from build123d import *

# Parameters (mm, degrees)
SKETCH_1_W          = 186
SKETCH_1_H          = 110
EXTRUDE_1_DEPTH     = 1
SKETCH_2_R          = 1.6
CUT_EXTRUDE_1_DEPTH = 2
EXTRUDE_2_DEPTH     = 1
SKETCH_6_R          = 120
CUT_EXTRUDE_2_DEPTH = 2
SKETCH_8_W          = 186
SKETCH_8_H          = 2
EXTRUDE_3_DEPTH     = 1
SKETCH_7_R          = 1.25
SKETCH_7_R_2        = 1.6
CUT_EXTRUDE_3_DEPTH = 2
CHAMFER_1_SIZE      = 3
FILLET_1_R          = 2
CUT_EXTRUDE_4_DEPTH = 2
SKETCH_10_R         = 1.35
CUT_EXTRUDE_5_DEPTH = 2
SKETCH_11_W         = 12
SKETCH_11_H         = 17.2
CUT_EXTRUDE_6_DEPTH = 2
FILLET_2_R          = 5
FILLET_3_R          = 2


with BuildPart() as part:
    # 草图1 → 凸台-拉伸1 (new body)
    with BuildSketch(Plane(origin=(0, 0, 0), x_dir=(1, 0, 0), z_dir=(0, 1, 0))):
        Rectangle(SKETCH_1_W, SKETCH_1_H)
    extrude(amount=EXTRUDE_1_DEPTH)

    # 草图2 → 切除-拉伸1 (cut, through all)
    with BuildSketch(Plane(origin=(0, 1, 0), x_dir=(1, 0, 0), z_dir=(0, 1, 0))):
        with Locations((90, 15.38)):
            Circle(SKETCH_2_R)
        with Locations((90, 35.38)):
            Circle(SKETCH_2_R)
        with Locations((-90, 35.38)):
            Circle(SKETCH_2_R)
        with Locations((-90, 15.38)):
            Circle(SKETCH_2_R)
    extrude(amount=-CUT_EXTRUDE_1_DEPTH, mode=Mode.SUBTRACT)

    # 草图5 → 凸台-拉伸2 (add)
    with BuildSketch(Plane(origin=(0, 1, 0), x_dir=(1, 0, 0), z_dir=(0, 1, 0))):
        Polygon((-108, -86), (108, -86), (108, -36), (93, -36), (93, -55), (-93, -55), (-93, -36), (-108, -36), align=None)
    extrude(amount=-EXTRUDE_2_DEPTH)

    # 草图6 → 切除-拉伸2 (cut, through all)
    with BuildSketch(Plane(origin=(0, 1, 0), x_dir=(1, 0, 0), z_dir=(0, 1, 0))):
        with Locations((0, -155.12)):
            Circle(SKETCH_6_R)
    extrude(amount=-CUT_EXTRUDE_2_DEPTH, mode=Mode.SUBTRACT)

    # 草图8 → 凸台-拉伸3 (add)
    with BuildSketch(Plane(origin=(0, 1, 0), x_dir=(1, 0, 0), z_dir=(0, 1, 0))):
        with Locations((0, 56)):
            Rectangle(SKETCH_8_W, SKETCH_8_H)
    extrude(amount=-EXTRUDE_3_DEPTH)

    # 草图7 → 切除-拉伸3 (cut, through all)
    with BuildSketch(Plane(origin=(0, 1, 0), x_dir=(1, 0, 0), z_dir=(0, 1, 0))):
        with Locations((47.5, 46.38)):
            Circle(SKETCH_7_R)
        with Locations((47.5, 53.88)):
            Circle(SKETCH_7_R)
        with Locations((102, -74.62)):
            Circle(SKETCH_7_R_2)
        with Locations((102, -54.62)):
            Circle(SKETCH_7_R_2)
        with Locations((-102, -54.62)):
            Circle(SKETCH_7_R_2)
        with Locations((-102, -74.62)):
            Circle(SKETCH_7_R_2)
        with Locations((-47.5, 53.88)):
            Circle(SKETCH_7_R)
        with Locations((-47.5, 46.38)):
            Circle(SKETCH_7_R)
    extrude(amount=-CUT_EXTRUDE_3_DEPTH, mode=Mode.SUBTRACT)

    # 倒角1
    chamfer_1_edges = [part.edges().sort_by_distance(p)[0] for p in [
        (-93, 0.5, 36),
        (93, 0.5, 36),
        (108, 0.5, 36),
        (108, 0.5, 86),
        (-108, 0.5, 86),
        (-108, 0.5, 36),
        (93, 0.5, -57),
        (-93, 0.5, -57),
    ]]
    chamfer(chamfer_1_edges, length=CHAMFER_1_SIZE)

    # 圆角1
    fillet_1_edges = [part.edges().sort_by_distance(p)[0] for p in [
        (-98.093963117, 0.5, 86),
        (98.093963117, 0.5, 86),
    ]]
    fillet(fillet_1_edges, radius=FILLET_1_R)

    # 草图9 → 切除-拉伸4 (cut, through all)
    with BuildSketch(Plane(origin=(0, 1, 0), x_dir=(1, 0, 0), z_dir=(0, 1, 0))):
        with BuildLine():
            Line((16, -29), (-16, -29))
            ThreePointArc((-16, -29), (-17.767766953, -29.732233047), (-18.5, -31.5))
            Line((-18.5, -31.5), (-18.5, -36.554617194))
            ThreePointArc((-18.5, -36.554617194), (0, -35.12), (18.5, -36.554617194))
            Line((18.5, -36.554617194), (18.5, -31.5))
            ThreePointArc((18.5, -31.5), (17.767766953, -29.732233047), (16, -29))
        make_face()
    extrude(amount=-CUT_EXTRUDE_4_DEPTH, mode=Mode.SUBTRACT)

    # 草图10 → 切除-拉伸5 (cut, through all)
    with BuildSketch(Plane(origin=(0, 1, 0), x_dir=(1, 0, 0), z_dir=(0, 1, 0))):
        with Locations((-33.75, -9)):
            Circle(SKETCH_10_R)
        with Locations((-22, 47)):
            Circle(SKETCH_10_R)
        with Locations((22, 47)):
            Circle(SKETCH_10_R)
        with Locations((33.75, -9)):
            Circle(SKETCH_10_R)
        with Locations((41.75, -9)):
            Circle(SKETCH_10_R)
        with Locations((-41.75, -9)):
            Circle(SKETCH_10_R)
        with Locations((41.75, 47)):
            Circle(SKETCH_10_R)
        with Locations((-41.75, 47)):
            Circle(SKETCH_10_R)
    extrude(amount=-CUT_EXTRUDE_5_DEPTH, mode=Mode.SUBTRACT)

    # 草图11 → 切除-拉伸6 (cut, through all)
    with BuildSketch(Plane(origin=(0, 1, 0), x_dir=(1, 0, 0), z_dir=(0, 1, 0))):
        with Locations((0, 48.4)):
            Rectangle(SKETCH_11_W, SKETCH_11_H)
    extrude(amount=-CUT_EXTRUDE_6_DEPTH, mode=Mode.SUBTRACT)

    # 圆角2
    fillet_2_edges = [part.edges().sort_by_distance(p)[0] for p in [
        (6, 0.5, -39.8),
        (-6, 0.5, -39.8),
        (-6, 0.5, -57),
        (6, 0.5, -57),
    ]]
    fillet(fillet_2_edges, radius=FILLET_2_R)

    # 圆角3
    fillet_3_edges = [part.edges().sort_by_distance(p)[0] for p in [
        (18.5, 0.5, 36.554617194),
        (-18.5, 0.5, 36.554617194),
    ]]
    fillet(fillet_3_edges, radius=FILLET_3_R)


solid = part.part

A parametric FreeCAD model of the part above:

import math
import FreeCAD as App
import Part
import Sketcher

V = App.Vector
Q = App.Units.Quantity


def edges_at(feature, points):
    """Names of the edges that pass closest to the given points."""
    edges = feature.Shape.Edges
    near = lambda p: min(range(len(edges)), key=lambda i: edges[i].distToShape(Part.Vertex(*p))[0])
    return sorted({f"Edge{near(p) + 1}" for p in points})


def add_polygon(sketch, points):
    """Adds a closed chain of lines whose ends are joined by coincident constraints."""
    first, n = sketch.GeometryCount, len(points)
    for a, b in zip(points, points[1:] + points[:1]):
        sketch.addGeometry(Part.LineSegment(App.Vector(*a, 0), App.Vector(*b, 0)), False)
    for i in range(n):
        sketch.addConstraint(Sketcher.Constraint("Coincident", first + i, 2, first + (i + 1) % n, 1))

doc = App.newDocument("Part")
body = doc.addObject("PartDesign::Body", "Body")

sketch1 = doc.addObject("Sketcher::SketchObject", "Sketch")
body.addObject(sketch1)
sketch1.AttachmentSupport = (doc.XZ_Plane, [""])
sketch1.MapMode = "FlatFace"
add_polygon(sketch1, [(-93, -55), (-93, 55), (93, 55), (93, -55)])
sketch1.addConstraint([
    Sketcher.Constraint("Vertical", 0),
    Sketcher.Constraint("Horizontal", 1),
    Sketcher.Constraint("Vertical", 2),
    Sketcher.Constraint("Horizontal", 3),
    Sketcher.Constraint("Symmetric", 0, 2, 2, 2, -1, 1),
    Sketcher.Constraint("DistanceX", 1, 1, 1, 2, Q("186 mm")),
    Sketcher.Constraint("DistanceY", 0, 1, 0, 2, Q("110 mm")),
])
pad1 = doc.addObject("PartDesign::Pad", "Pad")
body.addObject(pad1)
pad1.Profile = sketch1
pad1.Length = 1
pad1.Reversed = True

sketch2 = doc.addObject("Sketcher::SketchObject", "Sketch001")
body.addObject(sketch2)
sketch2.AttachmentSupport = (doc.XZ_Plane, [""])
sketch2.MapMode = "FlatFace"
sketch2.AttachmentOffset = App.Placement(V(0, 0, -1), App.Rotation())
sketch2.addGeometry([
    Part.Circle(V(90, -15.4, 0), V(0, 0, 1), 1.6),
    Part.Circle(V(90, -35.4, 0), V(0, 0, 1), 1.6),
    Part.Circle(V(-90, -35.4, 0), V(0, 0, 1), 1.6),
    Part.Circle(V(-90, -15.4, 0), V(0, 0, 1), 1.6),
], False)
sketch2.addConstraint([
    Sketcher.Constraint("Equal", 0, 1),
    Sketcher.Constraint("Equal", 1, 2),
    Sketcher.Constraint("Equal", 2, 3),
    Sketcher.Constraint("Symmetric", 1, 3, 2, 3, -2),
    Sketcher.Constraint("Symmetric", 0, 3, 3, 3, -2),
    Sketcher.Constraint("Vertical", 0, 3, 1, 3),
    Sketcher.Constraint("Diameter", 0, Q("3.2 mm")),
    Sketcher.Constraint("DistanceX", -1, 1, 0, 3, Q("90 mm")),
    Sketcher.Constraint("DistanceY", 1, 3, 0, 3, Q("20 mm")),
    Sketcher.Constraint("DistanceY", 0, 3, -1, 1, Q("15.38 mm")),
])
pocket1 = doc.addObject("PartDesign::Pocket", "Pocket")
body.addObject(pocket1)
pocket1.Profile = sketch2
pocket1.Type = "ThroughAll"
pocket1.Reversed = True

sketch3 = doc.addObject("Sketcher::SketchObject", "Sketch002")
body.addObject(sketch3)
sketch3.AttachmentSupport = (doc.XZ_Plane, [""])
sketch3.MapMode = "FlatFace"
sketch3.AttachmentOffset = App.Placement(V(0, 0, -1), App.Rotation())
add_polygon(sketch3, [(-108, 86), (108, 86), (108, 36), (93, 36), (93, 55), (-93, 55), (-93, 36), (-108, 36)])
sketch3.addConstraint([
    Sketcher.Constraint("Horizontal", 0),
    Sketcher.Constraint("Vertical", 1),
    Sketcher.Constraint("Horizontal", 2),
    Sketcher.Constraint("Vertical", 3),
    Sketcher.Constraint("Horizontal", 4),
    Sketcher.Constraint("Vertical", 5),
    Sketcher.Constraint("Horizontal", 6),
    Sketcher.Constraint("Vertical", 7),
    Sketcher.Constraint("Symmetric", 2, 2, 5, 2, -2),
    Sketcher.Constraint("Equal", 2, 6),
    Sketcher.Constraint("DistanceX", 0, 1, 0, 2, Q("216 mm")),
    Sketcher.Constraint("DistanceX", 2, 2, 2, 1, Q("15 mm")),
    Sketcher.Constraint("DistanceY", 1, 2, 1, 1, Q("50 mm")),
    Sketcher.Constraint("DistanceY", 3, 1, 3, 2, Q("19 mm")),
    Sketcher.Constraint("DistanceY", -1, 1, 0, 2, Q("86 mm")),
])
pad2 = doc.addObject("PartDesign::Pad", "Pad001")
body.addObject(pad2)
pad2.Profile = sketch3
pad2.Length = 1

sketch4 = doc.addObject("Sketcher::SketchObject", "Sketch003")
body.addObject(sketch4)
sketch4.AttachmentSupport = (doc.XZ_Plane, [""])
sketch4.MapMode = "FlatFace"
sketch4.AttachmentOffset = App.Placement(V(0, 0, -1), App.Rotation())
sketch4.addGeometry(Part.Circle(V(0, 155, 0), V(0, 0, 1), 120), False)
sketch4.addConstraint([
    Sketcher.Constraint("PointOnObject", 0, 3, -2),
    Sketcher.Constraint("Diameter", 0, Q("240 mm")),
    Sketcher.Constraint("DistanceY", -1, 1, 0, 3, Q("155.12 mm")),
])
pocket2 = doc.addObject("PartDesign::Pocket", "Pocket001")
body.addObject(pocket2)
pocket2.Profile = sketch4
pocket2.Type = "ThroughAll"
pocket2.Reversed = True

sketch5 = doc.addObject("Sketcher::SketchObject", "Sketch004")
body.addObject(sketch5)
sketch5.AttachmentSupport = (doc.XZ_Plane, [""])
sketch5.MapMode = "FlatFace"
sketch5.AttachmentOffset = App.Placement(V(0, 0, -1), App.Rotation())
add_polygon(sketch5, [(-93, -57), (-93, -55), (93, -55), (93, -57)])
sketch5.addConstraint([
    Sketcher.Constraint("Vertical", 0),
    Sketcher.Constraint("Horizontal", 1),
    Sketcher.Constraint("Vertical", 2),
    Sketcher.Constraint("Horizontal", 3),
    Sketcher.Constraint("DistanceX", 1, 1, 1, 2, Q("186 mm")),
    Sketcher.Constraint("DistanceY", 0, 1, 0, 2, Q("2 mm")),
    Sketcher.Constraint("DistanceX", 0, 2, -1, 1, Q("93 mm")),
    Sketcher.Constraint("DistanceY", 0, 2, -1, 1, Q("55 mm")),
])
pad3 = doc.addObject("PartDesign::Pad", "Pad002")
body.addObject(pad3)
pad3.Profile = sketch5
pad3.Length = 1

sketch6 = doc.addObject("Sketcher::SketchObject", "Sketch005")
body.addObject(sketch6)
sketch6.AttachmentSupport = (doc.XZ_Plane, [""])
sketch6.MapMode = "FlatFace"
sketch6.AttachmentOffset = App.Placement(V(0, 0, -1), App.Rotation())
sketch6.addGeometry([
    Part.Circle(V(47.5, -46.4, 0), V(0, 0, 1), 1.2),
    Part.Circle(V(47.5, -53.9, 0), V(0, 0, 1), 1.2),
    Part.Circle(V(102, 74.6, 0), V(0, 0, 1), 1.6),
    Part.Circle(V(102, 54.6, 0), V(0, 0, 1), 1.6),
    Part.Circle(V(-102, 54.6, 0), V(0, 0, 1), 1.6),
    Part.Circle(V(-102, 74.6, 0), V(0, 0, 1), 1.6),
    Part.Circle(V(-47.5, -53.9, 0), V(0, 0, 1), 1.2),
    Part.Circle(V(-47.5, -46.4, 0), V(0, 0, 1), 1.2),
], False)
sketch6.addConstraint([
    Sketcher.Constraint("Equal", 0, 1),
    Sketcher.Constraint("Equal", 2, 3),
    Sketcher.Constraint("Equal", 3, 4),
    Sketcher.Constraint("Equal", 4, 5),
    Sketcher.Constraint("Equal", 1, 6),
    Sketcher.Constraint("Equal", 6, 7),
    Sketcher.Constraint("Symmetric", 3, 3, 4, 3, -2),
    Sketcher.Constraint("Symmetric", 2, 3, 5, 3, -2),
    Sketcher.Constraint("Symmetric", 1, 3, 6, 3, -2),
    Sketcher.Constraint("Symmetric", 0, 3, 7, 3, -2),
    Sketcher.Constraint("Vertical", 0, 3, 1, 3),
    Sketcher.Constraint("Vertical", 2, 3, 3, 3),
    Sketcher.Constraint("Diameter", 0, Q("2.5 mm")),
    Sketcher.Constraint("Diameter", 2, Q("3.2 mm")),
    Sketcher.Constraint("DistanceX", -1, 1, 2, 3, Q("102 mm")),
    Sketcher.Constraint("DistanceY", 0, 3, 2, 3, Q("121 mm")),
    Sketcher.Constraint("DistanceY", 3, 3, 2, 3, Q("20 mm")),
    Sketcher.Constraint("DistanceX", 6, 3, 1, 3, Q("95 mm")),
    Sketcher.Constraint("DistanceY", 1, 3, 0, 3, Q("7.5 mm")),
    Sketcher.Constraint("DistanceY", 0, 3, -1, 1, Q("46.38 mm")),
])
pocket3 = doc.addObject("PartDesign::Pocket", "Pocket002")
body.addObject(pocket3)
pocket3.Profile = sketch6
pocket3.Type = "ThroughAll"
pocket3.Reversed = True
doc.recompute()

chamfer = doc.addObject("PartDesign::Chamfer", "Chamfer")
body.addObject(chamfer)
chamfer.Base = (pocket3, edges_at(pocket3, [
    (-93, 0.5, 36),
    (93, 0.5, 36),
    (108, 0.5, 36),
    (108, 0.5, 86),
    (-108, 0.5, 86),
    (-108, 0.5, 36),
    (93, 0.5, -57),
    (-93, 0.5, -57),
]))
chamfer.Size = 3
doc.recompute()

fillet = doc.addObject("PartDesign::Fillet", "Fillet")
body.addObject(fillet)
fillet.Base = (chamfer, edges_at(chamfer, [(-98.094, 0.5, 86), (98.094, 0.5, 86)]))
fillet.Radius = 2

sketch7 = doc.addObject("Sketcher::SketchObject", "Sketch006")
body.addObject(sketch7)
sketch7.AttachmentSupport = (doc.XZ_Plane, [""])
sketch7.MapMode = "FlatFace"
sketch7.AttachmentOffset = App.Placement(V(0, 0, -1), App.Rotation())
sketch7.addGeometry([
    Part.LineSegment(V(16, 29, 0), V(-16, 29, 0)),
    Part.ArcOfCircle(Part.Circle(V(-16, 31.5, 0), V(0, 0, 1), 2.5), math.radians(180), math.radians(270)),
    Part.LineSegment(V(-18.5, 31.5, 0), V(-18.5, 36.6, 0)),
    Part.ArcOfCircle(Part.Circle(V(0, 155.1, 0), V(0, 0, 1), 120), math.radians(-98.87), math.radians(-81.13)),
    Part.LineSegment(V(18.5, 36.6, 0), V(18.5, 31.5, 0)),
    Part.ArcOfCircle(Part.Circle(V(16, 31.5, 0), V(0, 0, 1), 2.5), math.radians(-90), math.radians(0)),
], False)
sketch7.addConstraint([
    Sketcher.Constraint("Tangent", 0, 2, 1, 2),
    Sketcher.Constraint("Tangent", 1, 1, 2, 1),
    Sketcher.Constraint("Coincident", 2, 2, 3, 1),
    Sketcher.Constraint("Coincident", 3, 2, 4, 1),
    Sketcher.Constraint("Tangent", 4, 2, 5, 2),
    Sketcher.Constraint("Tangent", 5, 1, 0, 1),
    Sketcher.Constraint("Horizontal", 0),
    Sketcher.Constraint("Vertical", 2),
    Sketcher.Constraint("Vertical", 4),
    Sketcher.Constraint("Equal", 1, 5),
    Sketcher.Constraint("Symmetric", 2, 2, 3, 2, -2),
    Sketcher.Constraint("Radius", 3, Q("120 mm")),
    Sketcher.Constraint("Radius", 1, Q("2.5 mm")),
    Sketcher.Constraint("DistanceX", 0, 2, 0, 1, Q("32 mm")),
    Sketcher.Constraint("DistanceY", -1, 1, 0, 2, Q("29 mm")),
    Sketcher.Constraint("DistanceY", -1, 1, 3, 3, Q("155.12 mm")),
])
pocket4 = doc.addObject("PartDesign::Pocket", "Pocket003")
body.addObject(pocket4)
pocket4.Profile = sketch7
pocket4.Type = "ThroughAll"
pocket4.Reversed = True

sketch8 = doc.addObject("Sketcher::SketchObject", "Sketch007")
body.addObject(sketch8)
sketch8.AttachmentSupport = (doc.XZ_Plane, [""])
sketch8.MapMode = "FlatFace"
sketch8.AttachmentOffset = App.Placement(V(0, 0, -1), App.Rotation())
sketch8.addGeometry([
    Part.Circle(V(-33.8, 9, 0), V(0, 0, 1), 1.4),
    Part.Circle(V(-22, -47, 0), V(0, 0, 1), 1.4),
    Part.Circle(V(22, -47, 0), V(0, 0, 1), 1.4),
    Part.Circle(V(33.8, 9, 0), V(0, 0, 1), 1.4),
    Part.Circle(V(41.8, 9, 0), V(0, 0, 1), 1.4),
    Part.Circle(V(-41.8, 9, 0), V(0, 0, 1), 1.4),
    Part.Circle(V(41.8, -47, 0), V(0, 0, 1), 1.4),
    Part.Circle(V(-41.8, -47, 0), V(0, 0, 1), 1.4),
], False)
sketch8.addConstraint([
    Sketcher.Constraint("Equal", 0, 1),
    Sketcher.Constraint("Equal", 1, 2),
    Sketcher.Constraint("Equal", 2, 3),
    Sketcher.Constraint("Equal", 3, 4),
    Sketcher.Constraint("Equal", 4, 5),
    Sketcher.Constraint("Equal", 5, 6),
    Sketcher.Constraint("Equal", 6, 7),
    Sketcher.Constraint("Symmetric", 1, 3, 2, 3, -2),
    Sketcher.Constraint("Symmetric", 0, 3, 3, 3, -2),
    Sketcher.Constraint("Symmetric", 4, 3, 5, 3, -2),
    Sketcher.Constraint("Symmetric", 6, 3, 7, 3, -2),
    Sketcher.Constraint("Horizontal", 3, 3, 4, 3),
    Sketcher.Constraint("Horizontal", 2, 3, 6, 3),
    Sketcher.Constraint("Vertical", 4, 3, 6, 3),
    Sketcher.Constraint("Diameter", 0, Q("2.7 mm")),
    Sketcher.Constraint("DistanceY", -1, 1, 0, 3, Q("9 mm")),
    Sketcher.Constraint("DistanceX", 1, 3, -1, 1, Q("22 mm")),
    Sketcher.Constraint("DistanceY", 1, 3, -1, 1, Q("47 mm")),
    Sketcher.Constraint("DistanceX", 3, 3, 4, 3, Q("8 mm")),
    Sketcher.Constraint("DistanceX", 0, 3, 3, 3, Q("67.5 mm")),
])
pocket5 = doc.addObject("PartDesign::Pocket", "Pocket004")
body.addObject(pocket5)
pocket5.Profile = sketch8
pocket5.Type = "ThroughAll"
pocket5.Reversed = True

sketch9 = doc.addObject("Sketcher::SketchObject", "Sketch008")
body.addObject(sketch9)
sketch9.AttachmentSupport = (doc.XZ_Plane, [""])
sketch9.MapMode = "FlatFace"
sketch9.AttachmentOffset = App.Placement(V(0, 0, -1), App.Rotation())
add_polygon(sketch9, [(-6, -57), (-6, -40), (6, -40), (6, -57)])
sketch9.addConstraint([
    Sketcher.Constraint("Vertical", 0),
    Sketcher.Constraint("Horizontal", 1),
    Sketcher.Constraint("Vertical", 2),
    Sketcher.Constraint("Horizontal", 3),
    Sketcher.Constraint("DistanceX", 1, 1, 1, 2, Q("12 mm")),
    Sketcher.Constraint("DistanceY", 0, 1, 0, 2, Q("17.2 mm")),
    Sketcher.Constraint("DistanceX", 0, 2, -1, 1, Q("6 mm")),
    Sketcher.Constraint("DistanceY", 2, 2, -1, 1, Q("57 mm")),
])
pocket6 = doc.addObject("PartDesign::Pocket", "Pocket005")
body.addObject(pocket6)
pocket6.Profile = sketch9
pocket6.Type = "ThroughAll"
pocket6.Reversed = True
doc.recompute()

fillet2 = doc.addObject("PartDesign::Fillet", "Fillet001")
body.addObject(fillet2)
fillet2.Base = (pocket6, edges_at(pocket6, [
    (6, 0.5, -39.8),
    (-6, 0.5, -39.8),
    (-6, 0.5, -57),
    (6, 0.5, -57),
]))
fillet2.Radius = 5
doc.recompute()

fillet3 = doc.addObject("PartDesign::Fillet", "Fillet002")
body.addObject(fillet3)
fillet3.Base = (fillet2, edges_at(fillet2, [(18.5, 0.5, 36.555), (-18.5, 0.5, 36.555)]))
fillet3.Radius = 2

doc.recompute()
